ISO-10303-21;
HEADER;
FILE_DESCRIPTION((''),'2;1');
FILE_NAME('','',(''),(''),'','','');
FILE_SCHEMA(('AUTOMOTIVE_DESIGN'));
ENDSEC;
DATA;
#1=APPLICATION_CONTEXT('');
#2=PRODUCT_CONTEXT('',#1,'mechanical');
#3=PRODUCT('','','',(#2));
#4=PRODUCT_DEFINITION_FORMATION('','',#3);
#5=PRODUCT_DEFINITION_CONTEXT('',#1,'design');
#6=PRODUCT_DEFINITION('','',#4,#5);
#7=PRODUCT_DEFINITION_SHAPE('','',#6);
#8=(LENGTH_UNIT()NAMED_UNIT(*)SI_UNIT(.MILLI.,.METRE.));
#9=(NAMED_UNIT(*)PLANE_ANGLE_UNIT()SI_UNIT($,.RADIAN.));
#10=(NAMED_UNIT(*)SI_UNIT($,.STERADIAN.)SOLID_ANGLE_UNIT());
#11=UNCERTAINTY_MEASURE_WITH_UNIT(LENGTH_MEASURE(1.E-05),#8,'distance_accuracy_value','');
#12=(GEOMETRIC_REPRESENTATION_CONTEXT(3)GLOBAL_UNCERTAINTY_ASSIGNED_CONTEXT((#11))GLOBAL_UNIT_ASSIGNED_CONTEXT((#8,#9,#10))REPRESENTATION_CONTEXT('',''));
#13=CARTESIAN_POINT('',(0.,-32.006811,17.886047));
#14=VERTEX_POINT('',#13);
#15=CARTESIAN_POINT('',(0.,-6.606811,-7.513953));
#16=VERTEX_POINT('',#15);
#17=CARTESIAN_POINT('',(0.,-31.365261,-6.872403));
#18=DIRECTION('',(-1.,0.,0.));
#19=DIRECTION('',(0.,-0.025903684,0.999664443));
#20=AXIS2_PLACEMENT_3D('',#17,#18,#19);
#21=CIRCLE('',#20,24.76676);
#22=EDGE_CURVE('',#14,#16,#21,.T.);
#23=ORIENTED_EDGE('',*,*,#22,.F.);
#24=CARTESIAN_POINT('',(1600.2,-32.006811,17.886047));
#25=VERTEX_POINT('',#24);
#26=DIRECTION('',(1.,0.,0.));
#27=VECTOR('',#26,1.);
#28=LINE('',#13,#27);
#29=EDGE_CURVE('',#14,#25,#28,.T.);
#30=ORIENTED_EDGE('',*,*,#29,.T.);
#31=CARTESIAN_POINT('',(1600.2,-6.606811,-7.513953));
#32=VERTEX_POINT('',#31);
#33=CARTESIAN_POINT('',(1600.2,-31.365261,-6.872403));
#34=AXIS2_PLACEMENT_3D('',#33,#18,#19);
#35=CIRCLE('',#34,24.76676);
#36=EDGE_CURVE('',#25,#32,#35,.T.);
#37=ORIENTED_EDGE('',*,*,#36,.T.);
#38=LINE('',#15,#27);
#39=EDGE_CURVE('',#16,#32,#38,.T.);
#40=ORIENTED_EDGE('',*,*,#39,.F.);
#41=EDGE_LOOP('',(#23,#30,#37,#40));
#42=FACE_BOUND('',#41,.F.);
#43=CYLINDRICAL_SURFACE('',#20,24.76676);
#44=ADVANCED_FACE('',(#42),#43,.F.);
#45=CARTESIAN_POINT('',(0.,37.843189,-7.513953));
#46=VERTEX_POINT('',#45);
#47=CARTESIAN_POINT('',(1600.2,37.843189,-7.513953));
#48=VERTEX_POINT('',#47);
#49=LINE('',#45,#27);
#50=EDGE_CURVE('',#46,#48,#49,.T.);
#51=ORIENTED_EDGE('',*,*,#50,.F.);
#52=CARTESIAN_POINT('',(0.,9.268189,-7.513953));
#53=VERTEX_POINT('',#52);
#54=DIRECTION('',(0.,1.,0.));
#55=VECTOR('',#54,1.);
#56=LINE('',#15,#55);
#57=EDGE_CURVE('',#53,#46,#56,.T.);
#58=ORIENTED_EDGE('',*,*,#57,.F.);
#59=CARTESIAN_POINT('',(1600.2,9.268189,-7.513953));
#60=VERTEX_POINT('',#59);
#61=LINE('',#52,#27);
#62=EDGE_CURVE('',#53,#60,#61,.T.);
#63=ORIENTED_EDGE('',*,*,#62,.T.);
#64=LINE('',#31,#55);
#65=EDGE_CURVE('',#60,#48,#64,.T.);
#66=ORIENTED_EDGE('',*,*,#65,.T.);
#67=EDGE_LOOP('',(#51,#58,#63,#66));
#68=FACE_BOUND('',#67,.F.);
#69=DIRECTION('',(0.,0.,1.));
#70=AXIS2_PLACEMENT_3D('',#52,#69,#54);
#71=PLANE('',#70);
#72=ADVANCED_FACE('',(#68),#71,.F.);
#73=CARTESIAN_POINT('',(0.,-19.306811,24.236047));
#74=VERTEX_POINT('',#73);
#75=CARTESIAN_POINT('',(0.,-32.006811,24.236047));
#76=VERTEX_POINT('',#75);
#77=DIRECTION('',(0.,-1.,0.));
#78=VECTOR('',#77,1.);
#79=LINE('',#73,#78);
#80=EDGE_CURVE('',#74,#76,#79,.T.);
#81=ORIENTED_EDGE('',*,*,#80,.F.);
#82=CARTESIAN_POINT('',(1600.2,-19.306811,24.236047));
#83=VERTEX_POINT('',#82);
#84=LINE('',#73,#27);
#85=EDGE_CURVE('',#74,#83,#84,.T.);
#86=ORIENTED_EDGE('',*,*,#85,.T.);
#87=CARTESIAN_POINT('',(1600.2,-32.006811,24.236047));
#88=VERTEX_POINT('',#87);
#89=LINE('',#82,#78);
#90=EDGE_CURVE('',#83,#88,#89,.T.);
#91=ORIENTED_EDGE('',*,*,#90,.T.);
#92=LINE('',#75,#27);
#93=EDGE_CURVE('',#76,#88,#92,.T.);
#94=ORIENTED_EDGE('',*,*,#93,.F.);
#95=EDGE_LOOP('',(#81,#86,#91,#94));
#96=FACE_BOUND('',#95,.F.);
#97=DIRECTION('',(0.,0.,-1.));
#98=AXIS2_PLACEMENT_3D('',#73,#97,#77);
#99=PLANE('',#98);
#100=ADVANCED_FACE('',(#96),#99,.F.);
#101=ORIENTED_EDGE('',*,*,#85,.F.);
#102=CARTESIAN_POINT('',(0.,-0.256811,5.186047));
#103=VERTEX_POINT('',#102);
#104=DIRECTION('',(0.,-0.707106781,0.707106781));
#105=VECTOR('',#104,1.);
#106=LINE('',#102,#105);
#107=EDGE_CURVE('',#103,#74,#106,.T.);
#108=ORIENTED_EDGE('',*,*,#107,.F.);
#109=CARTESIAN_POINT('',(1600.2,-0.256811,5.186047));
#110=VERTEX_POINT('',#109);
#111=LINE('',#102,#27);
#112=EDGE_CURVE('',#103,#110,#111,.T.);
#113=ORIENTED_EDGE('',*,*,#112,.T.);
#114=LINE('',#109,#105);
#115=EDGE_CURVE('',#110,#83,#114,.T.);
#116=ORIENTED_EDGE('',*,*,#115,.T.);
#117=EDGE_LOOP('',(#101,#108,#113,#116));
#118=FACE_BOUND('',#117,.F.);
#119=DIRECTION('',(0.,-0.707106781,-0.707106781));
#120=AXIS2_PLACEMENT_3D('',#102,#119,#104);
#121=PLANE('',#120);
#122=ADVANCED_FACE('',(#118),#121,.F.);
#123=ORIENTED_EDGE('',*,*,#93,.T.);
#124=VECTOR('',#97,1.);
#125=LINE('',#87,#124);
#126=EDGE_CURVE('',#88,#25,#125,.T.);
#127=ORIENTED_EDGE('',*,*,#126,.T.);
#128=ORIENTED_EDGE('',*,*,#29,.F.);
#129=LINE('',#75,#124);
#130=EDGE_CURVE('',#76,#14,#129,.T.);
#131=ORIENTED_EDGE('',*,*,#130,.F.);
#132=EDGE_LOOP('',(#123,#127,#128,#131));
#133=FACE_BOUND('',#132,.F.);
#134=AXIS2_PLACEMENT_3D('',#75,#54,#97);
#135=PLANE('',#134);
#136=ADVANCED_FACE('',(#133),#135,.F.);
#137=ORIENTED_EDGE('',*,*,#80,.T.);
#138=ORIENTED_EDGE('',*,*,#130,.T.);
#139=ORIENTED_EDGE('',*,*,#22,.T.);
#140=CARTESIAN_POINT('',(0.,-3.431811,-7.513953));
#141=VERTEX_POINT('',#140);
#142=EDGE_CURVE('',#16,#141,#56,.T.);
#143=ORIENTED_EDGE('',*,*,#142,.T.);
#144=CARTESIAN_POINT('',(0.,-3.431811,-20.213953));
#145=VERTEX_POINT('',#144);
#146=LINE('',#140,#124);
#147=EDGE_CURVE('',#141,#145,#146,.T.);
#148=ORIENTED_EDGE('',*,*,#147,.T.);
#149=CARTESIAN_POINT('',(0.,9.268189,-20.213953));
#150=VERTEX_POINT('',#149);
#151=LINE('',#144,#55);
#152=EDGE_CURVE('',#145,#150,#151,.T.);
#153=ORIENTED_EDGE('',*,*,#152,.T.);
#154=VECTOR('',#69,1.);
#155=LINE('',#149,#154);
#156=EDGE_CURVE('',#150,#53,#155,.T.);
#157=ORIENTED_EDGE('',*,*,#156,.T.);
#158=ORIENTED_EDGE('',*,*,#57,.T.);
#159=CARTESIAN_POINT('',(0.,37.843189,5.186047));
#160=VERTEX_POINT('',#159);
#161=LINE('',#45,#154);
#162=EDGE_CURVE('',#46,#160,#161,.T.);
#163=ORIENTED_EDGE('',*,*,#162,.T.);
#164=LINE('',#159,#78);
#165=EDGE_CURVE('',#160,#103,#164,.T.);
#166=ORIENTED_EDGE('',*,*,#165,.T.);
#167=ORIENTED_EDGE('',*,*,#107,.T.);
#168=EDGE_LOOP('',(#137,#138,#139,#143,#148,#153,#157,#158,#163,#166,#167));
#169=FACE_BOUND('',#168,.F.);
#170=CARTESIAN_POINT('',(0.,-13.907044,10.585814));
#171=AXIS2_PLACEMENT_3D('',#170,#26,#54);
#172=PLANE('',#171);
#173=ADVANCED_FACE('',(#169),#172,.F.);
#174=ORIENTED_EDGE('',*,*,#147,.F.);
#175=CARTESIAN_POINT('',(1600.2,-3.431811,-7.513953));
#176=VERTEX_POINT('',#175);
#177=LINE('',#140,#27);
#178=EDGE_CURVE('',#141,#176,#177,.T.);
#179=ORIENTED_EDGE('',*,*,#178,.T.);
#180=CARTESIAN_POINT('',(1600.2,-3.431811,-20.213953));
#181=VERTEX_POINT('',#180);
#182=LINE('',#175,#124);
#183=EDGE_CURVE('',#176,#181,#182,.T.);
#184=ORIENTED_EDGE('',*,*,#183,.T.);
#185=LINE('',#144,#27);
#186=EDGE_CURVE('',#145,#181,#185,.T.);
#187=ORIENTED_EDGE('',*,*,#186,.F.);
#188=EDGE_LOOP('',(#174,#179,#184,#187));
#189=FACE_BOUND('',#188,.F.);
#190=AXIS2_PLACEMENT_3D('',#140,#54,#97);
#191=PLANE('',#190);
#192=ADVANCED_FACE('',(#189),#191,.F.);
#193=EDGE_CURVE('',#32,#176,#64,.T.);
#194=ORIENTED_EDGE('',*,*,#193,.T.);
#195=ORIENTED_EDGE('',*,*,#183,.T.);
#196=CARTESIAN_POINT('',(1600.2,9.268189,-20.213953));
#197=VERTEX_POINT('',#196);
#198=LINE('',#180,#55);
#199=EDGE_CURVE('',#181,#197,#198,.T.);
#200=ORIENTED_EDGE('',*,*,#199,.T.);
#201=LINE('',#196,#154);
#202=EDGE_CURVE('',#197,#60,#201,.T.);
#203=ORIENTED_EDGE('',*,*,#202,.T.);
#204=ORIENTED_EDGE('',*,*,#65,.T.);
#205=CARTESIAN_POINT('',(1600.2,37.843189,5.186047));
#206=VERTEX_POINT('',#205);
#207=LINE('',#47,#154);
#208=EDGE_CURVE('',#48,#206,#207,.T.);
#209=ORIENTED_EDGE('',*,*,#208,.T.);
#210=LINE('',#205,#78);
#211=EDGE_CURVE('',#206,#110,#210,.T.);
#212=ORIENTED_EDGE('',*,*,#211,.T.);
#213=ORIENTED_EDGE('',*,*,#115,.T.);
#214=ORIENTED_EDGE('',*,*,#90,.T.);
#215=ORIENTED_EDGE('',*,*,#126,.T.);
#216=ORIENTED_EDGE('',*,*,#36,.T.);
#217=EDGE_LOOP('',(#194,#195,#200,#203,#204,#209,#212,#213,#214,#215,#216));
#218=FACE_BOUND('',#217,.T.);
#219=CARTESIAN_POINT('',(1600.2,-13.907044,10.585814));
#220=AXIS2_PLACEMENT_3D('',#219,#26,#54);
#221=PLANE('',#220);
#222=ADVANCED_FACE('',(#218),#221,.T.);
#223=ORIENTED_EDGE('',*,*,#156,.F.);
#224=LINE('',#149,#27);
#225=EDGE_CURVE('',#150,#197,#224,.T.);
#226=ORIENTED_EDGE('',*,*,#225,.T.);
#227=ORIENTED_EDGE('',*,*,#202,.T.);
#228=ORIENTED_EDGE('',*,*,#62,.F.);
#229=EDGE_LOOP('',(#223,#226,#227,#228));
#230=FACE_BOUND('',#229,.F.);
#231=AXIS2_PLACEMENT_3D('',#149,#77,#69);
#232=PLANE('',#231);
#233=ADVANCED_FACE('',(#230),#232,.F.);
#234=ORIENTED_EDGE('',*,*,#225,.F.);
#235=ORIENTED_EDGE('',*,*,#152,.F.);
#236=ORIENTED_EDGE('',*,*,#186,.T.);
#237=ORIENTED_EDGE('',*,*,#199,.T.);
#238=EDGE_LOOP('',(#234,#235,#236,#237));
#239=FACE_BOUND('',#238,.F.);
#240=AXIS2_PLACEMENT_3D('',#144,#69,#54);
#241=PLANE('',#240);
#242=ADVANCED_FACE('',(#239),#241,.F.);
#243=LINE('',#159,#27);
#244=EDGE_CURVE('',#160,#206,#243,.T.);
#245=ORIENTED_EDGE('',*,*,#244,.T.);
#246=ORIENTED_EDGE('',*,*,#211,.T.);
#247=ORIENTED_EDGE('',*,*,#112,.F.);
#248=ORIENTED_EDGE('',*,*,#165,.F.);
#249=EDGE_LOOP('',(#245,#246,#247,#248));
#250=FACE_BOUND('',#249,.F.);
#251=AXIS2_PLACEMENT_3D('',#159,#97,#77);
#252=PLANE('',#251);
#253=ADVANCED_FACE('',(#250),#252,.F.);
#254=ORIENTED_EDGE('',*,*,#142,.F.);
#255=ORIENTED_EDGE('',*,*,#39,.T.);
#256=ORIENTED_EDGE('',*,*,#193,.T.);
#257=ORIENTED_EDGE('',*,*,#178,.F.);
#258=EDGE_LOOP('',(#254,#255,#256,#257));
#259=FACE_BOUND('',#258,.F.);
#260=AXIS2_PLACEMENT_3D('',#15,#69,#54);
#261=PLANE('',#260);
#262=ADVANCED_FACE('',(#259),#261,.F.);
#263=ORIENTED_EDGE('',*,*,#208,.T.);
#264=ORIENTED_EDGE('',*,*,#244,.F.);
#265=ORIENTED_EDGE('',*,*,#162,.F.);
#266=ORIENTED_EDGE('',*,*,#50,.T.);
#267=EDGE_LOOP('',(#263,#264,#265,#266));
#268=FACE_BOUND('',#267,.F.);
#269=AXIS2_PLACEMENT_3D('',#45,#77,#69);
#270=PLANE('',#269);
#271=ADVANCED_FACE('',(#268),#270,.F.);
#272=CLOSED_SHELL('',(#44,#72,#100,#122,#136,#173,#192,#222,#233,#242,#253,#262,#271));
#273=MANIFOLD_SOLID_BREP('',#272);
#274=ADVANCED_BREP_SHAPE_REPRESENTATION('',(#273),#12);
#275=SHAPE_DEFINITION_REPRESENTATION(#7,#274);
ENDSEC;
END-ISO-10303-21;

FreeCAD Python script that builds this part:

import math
import FreeCAD as App
import Part
import Sketcher

V = App.Vector
Q = App.Units.Quantity

doc = App.newDocument("Part")
body = doc.addObject("PartDesign::Body", "Body")

# Sketch on YZ plane
sketch1 = body.newObject("Sketcher::SketchObject", "Sketch")
sketch1.AttachmentSupport = (doc.getObject("YZ_Plane"), [""])
sketch1.MapMode = "FlatFace"
sketch1.addGeometry([
    Part.LineSegment(V(-32, 24.2, 0), V(-32, 17.9, 0)),  # 0
    Part.ArcOfCircle(Part.Circle(V(-31.4, -6.9, 0), V(0, 0, 1), 24.8), math.radians(-1), math.radians(91)),  # 1
    Part.LineSegment(V(-6.6, -7.5, 0), V(-3.4, -7.5, 0)),  # 2
    Part.LineSegment(V(-3.4, -7.5, 0), V(-3.4, -20.2, 0)),  # 3
    Part.LineSegment(V(-3.4, -20.2, 0), V(9.3, -20.2, 0)),  # 4
    Part.LineSegment(V(9.3, -20.2, 0), V(9.3, -7.5, 0)),  # 5
    Part.LineSegment(V(9.3, -7.5, 0), V(37.8, -7.5, 0)),  # 6
    Part.LineSegment(V(37.8, -7.5, 0), V(37.8, 5.2, 0)),  # 7
    Part.LineSegment(V(37.8, 5.2, 0), V(-0.3, 5.2, 0)),  # 8
    Part.LineSegment(V(-0.3, 5.2, 0), V(-19.3, 24.2, 0)),  # 9
    Part.LineSegment(V(-19.3, 24.2, 0), V(-32, 24.2, 0)),  # 10
], False)
sketch1.addConstraint([
    Sketcher.Constraint("Coincident", 0, 2, 1, 2),
    Sketcher.Constraint("Coincident", 1, 1, 2, 1),
    Sketcher.Constraint("Coincident", 2, 2, 3, 1),
    Sketcher.Constraint("Coincident", 3, 2, 4, 1),
    Sketcher.Constraint("Coincident", 4, 2, 5, 1),
    Sketcher.Constraint("Coincident", 5, 2, 6, 1),
    Sketcher.Constraint("Coincident", 6, 2, 7, 1),
    Sketcher.Constraint("Coincident", 7, 2, 8, 1),
    Sketcher.Constraint("Coincident", 8, 2, 9, 1),
    Sketcher.Constraint("Coincident", 9, 2, 10, 1),
    Sketcher.Constraint("Coincident", 10, 2, 0, 1),
    Sketcher.Constraint("Vertical", 0),
    Sketcher.Constraint("Horizontal", 2),
    Sketcher.Constraint("Vertical", 3),
    Sketcher.Constraint("Horizontal", 4),
    Sketcher.Constraint("Vertical", 5),
    Sketcher.Constraint("Horizontal", 6),
    Sketcher.Constraint("Vertical", 7),
    Sketcher.Constraint("Horizontal", 8),
    Sketcher.Constraint("Horizontal", 10),
    Sketcher.Constraint("Horizontal", 2, 2, 5, 2),
    Sketcher.Constraint("Equal", 4, 10),
    Sketcher.Constraint("Equal", 10, 3),
    Sketcher.Constraint("Equal", 5, 7),
    Sketcher.Constraint("DistanceX", 4, 1, 4, 2, Q("0.5 in")),
    Sketcher.Constraint("DistanceX", 8, 2, 8, 1, Q("1.5 in")),
    Sketcher.Constraint("Angle", 9, Q("135 deg")),
    Sketcher.Constraint("DistanceX", 0, 2, 1, 1, Q("1 in")),
    Sketcher.Constraint("DistanceY", 1, 1, 0, 2, Q("1 in")),
    Sketcher.Constraint("DistanceY", 0, 2, 0, 1, Q("0.25 in")),
    Sketcher.Constraint("DistanceX", 2, 1, 2, 2, Q("0.125 in")),
    Sketcher.Constraint("Radius", 1, 24.76676),
    Sketcher.Constraint("DistanceX", 1, 3, -1, 1, 31.365261),
    Sketcher.Constraint("DistanceY", 1, 3, -1, 1, 6.872403),
])
pad1 = body.newObject("PartDesign::Pad", "Pad")
pad1.Profile = sketch1
pad1.Length = Q("63 in")

doc.recompute()
